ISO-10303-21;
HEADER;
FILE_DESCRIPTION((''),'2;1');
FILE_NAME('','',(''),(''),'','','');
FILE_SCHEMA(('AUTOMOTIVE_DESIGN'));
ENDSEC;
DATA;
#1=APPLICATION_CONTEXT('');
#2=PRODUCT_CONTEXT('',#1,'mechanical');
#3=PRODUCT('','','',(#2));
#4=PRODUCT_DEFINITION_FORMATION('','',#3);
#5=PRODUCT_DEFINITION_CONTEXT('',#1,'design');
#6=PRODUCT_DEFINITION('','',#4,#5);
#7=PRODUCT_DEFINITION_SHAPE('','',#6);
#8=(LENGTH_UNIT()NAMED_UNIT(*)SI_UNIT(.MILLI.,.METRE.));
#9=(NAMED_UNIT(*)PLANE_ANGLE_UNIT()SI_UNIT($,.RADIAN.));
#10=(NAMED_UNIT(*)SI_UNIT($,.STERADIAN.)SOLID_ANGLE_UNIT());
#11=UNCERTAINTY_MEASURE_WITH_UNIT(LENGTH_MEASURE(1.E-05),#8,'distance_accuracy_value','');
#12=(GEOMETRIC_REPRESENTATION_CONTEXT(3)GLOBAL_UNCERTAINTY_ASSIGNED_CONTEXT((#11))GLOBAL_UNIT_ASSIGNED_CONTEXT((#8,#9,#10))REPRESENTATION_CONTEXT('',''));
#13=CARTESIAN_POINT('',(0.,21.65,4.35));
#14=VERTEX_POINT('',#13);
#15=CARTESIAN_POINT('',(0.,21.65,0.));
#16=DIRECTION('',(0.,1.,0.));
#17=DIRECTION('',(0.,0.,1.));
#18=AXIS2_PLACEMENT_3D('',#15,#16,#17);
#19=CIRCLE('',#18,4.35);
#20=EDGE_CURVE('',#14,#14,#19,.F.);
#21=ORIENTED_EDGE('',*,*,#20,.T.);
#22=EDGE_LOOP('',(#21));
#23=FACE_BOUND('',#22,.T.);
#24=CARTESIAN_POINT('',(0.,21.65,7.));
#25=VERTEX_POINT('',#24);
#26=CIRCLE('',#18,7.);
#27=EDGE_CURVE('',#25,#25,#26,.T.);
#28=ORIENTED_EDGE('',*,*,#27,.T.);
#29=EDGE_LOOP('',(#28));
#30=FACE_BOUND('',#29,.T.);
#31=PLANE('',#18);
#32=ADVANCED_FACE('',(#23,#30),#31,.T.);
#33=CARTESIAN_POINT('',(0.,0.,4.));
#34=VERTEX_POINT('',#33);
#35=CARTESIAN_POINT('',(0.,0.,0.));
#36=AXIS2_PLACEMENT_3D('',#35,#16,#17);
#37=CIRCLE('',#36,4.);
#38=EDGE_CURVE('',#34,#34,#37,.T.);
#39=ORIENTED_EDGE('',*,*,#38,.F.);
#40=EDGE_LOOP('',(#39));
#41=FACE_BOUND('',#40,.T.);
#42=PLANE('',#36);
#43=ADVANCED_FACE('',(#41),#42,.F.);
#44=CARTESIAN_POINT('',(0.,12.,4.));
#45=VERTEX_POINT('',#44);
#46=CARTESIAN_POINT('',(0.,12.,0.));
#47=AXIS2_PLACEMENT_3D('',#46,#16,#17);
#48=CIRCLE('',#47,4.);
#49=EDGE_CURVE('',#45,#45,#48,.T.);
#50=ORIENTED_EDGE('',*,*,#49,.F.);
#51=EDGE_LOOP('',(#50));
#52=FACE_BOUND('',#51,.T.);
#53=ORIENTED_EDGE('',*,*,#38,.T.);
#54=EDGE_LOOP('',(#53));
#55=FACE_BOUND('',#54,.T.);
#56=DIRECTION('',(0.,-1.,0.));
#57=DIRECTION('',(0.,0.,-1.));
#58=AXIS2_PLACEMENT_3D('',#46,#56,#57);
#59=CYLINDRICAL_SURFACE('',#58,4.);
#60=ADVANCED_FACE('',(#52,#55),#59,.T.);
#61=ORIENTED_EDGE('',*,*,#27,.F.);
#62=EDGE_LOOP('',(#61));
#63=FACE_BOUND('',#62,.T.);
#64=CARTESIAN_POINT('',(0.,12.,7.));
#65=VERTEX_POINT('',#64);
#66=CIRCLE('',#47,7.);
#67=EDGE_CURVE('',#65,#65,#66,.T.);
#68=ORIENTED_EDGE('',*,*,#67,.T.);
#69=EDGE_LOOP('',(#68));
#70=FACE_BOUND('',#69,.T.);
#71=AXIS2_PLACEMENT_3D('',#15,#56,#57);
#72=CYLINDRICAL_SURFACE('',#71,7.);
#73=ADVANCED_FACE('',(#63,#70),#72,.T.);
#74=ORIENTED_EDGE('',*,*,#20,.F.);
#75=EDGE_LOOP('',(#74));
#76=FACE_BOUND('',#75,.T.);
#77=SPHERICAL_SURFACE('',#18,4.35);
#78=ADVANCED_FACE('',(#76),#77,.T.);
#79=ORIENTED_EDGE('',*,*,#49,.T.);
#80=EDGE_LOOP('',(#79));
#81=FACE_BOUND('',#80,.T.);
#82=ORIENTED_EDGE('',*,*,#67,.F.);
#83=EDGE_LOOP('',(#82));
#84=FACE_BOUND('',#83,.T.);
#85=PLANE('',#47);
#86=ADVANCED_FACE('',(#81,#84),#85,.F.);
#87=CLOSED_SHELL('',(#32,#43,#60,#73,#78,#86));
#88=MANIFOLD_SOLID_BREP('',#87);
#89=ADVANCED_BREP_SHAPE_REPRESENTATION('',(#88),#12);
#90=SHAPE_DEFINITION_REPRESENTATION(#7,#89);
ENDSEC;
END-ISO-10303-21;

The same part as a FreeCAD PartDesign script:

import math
import FreeCAD as App
import Part
import Sketcher
from FreeCAD import Vector

doc = App.newDocument("Part")
params = doc.addObject("Spreadsheet::Sheet", "Params")
for row, (alias, value) in enumerate([
    ("sketch1_diameter", "8 mm"),
    ("pad1_length", "12 mm"),
    ("sketch2_diameter", "14 mm"),
    ("pad2_length", "9.65 mm"),
    ("sketch3_radius", "4.35 mm"),
    ("revolution_angle", "360 deg"),
], start=1):
    params.set(f"A{row}", alias)
    params.set(f"B{row}", "=" + value)
    params.setAlias(f"B{row}", alias)

body = doc.addObject("PartDesign::Body", "Body")

sketch1 = doc.addObject("Sketcher::SketchObject", "Sketch")
body.addObject(sketch1)
sketch1.AttachmentSupport = (doc.XZ_Plane, [""])
sketch1.MapMode = "FlatFace"
sketch1.addGeometry(Part.Circle(Vector(0, 0, 0), Vector(0, 0, 1), 4), False)
sketch1.addConstraint([
    Sketcher.Constraint("Coincident", 0, 3, -1, 1),
    Sketcher.Constraint("Diameter", 0, 8.0),
])
sketch1.setExpression("Constraints[1]", "Params.sketch1_diameter")
pad1 = doc.addObject("PartDesign::Pad", "Pad")
body.addObject(pad1)
pad1.Profile = sketch1
pad1.setExpression("Length", "Params.pad1_length")
pad1.Reversed = True

sketch2 = doc.addObject("Sketcher::SketchObject", "Sketch001")
body.addObject(sketch2)
sketch2.AttachmentSupport = (doc.XZ_Plane, [""])
sketch2.MapMode = "FlatFace"
sketch2.AttachmentOffset = App.Placement(Vector(0, 0, -12), App.Rotation())
sketch2.addGeometry(Part.Circle(Vector(0, 0, 0), Vector(0, 0, 1), 7), False)
sketch2.addConstraint([
    Sketcher.Constraint("Coincident", 0, 3, -1, 1),
    Sketcher.Constraint("Diameter", 0, 14.0),
])
sketch2.setExpression("Constraints[1]", "Params.sketch2_diameter")
pad2 = doc.addObject("PartDesign::Pad", "Pad001")
body.addObject(pad2)
pad2.Profile = sketch2
pad2.setExpression("Length", "Params.pad2_length")
pad2.Reversed = True

sketch3 = doc.addObject("Sketcher::SketchObject", "Sketch002")
body.addObject(sketch3)
sketch3.AttachmentSupport = (doc.XZ_Plane, [""])
sketch3.MapMode = "FlatFace"
sketch3.AttachmentOffset = App.Placement(Vector(0, 0, -21.65), App.Rotation())
sketch3.addGeometry([
    Part.LineSegment(Vector(0, -4.3, 0), Vector(0, 4.3, 0)),
    Part.ArcOfCircle(Part.Circle(Vector(0, 0, 0), Vector(0, 0, 1), 4.3), math.radians(-90), math.radians(90)),
], False)
sketch3.addConstraint([
    Sketcher.Constraint("Coincident", 0, 1, 1, 1),
    Sketcher.Constraint("Coincident", 1, 2, 0, 2),
    Sketcher.Constraint("Vertical", 0),
    Sketcher.Constraint("Coincident", 1, 3, -1, 1),
    Sketcher.Constraint("PointOnObject", 0, 1, -2),
    Sketcher.Constraint("Radius", 1, 4.35),
])
sketch3.setExpression("Constraints[5]", "Params.sketch3_radius")
revolution = doc.addObject("PartDesign::Revolution", "Revolution")
body.addObject(revolution)
revolution.Profile = sketch3
revolution.ReferenceAxis = (sketch3, ["V_Axis"])
revolution.setExpression("Angle", "Params.revolution_angle")

doc.recompute()
